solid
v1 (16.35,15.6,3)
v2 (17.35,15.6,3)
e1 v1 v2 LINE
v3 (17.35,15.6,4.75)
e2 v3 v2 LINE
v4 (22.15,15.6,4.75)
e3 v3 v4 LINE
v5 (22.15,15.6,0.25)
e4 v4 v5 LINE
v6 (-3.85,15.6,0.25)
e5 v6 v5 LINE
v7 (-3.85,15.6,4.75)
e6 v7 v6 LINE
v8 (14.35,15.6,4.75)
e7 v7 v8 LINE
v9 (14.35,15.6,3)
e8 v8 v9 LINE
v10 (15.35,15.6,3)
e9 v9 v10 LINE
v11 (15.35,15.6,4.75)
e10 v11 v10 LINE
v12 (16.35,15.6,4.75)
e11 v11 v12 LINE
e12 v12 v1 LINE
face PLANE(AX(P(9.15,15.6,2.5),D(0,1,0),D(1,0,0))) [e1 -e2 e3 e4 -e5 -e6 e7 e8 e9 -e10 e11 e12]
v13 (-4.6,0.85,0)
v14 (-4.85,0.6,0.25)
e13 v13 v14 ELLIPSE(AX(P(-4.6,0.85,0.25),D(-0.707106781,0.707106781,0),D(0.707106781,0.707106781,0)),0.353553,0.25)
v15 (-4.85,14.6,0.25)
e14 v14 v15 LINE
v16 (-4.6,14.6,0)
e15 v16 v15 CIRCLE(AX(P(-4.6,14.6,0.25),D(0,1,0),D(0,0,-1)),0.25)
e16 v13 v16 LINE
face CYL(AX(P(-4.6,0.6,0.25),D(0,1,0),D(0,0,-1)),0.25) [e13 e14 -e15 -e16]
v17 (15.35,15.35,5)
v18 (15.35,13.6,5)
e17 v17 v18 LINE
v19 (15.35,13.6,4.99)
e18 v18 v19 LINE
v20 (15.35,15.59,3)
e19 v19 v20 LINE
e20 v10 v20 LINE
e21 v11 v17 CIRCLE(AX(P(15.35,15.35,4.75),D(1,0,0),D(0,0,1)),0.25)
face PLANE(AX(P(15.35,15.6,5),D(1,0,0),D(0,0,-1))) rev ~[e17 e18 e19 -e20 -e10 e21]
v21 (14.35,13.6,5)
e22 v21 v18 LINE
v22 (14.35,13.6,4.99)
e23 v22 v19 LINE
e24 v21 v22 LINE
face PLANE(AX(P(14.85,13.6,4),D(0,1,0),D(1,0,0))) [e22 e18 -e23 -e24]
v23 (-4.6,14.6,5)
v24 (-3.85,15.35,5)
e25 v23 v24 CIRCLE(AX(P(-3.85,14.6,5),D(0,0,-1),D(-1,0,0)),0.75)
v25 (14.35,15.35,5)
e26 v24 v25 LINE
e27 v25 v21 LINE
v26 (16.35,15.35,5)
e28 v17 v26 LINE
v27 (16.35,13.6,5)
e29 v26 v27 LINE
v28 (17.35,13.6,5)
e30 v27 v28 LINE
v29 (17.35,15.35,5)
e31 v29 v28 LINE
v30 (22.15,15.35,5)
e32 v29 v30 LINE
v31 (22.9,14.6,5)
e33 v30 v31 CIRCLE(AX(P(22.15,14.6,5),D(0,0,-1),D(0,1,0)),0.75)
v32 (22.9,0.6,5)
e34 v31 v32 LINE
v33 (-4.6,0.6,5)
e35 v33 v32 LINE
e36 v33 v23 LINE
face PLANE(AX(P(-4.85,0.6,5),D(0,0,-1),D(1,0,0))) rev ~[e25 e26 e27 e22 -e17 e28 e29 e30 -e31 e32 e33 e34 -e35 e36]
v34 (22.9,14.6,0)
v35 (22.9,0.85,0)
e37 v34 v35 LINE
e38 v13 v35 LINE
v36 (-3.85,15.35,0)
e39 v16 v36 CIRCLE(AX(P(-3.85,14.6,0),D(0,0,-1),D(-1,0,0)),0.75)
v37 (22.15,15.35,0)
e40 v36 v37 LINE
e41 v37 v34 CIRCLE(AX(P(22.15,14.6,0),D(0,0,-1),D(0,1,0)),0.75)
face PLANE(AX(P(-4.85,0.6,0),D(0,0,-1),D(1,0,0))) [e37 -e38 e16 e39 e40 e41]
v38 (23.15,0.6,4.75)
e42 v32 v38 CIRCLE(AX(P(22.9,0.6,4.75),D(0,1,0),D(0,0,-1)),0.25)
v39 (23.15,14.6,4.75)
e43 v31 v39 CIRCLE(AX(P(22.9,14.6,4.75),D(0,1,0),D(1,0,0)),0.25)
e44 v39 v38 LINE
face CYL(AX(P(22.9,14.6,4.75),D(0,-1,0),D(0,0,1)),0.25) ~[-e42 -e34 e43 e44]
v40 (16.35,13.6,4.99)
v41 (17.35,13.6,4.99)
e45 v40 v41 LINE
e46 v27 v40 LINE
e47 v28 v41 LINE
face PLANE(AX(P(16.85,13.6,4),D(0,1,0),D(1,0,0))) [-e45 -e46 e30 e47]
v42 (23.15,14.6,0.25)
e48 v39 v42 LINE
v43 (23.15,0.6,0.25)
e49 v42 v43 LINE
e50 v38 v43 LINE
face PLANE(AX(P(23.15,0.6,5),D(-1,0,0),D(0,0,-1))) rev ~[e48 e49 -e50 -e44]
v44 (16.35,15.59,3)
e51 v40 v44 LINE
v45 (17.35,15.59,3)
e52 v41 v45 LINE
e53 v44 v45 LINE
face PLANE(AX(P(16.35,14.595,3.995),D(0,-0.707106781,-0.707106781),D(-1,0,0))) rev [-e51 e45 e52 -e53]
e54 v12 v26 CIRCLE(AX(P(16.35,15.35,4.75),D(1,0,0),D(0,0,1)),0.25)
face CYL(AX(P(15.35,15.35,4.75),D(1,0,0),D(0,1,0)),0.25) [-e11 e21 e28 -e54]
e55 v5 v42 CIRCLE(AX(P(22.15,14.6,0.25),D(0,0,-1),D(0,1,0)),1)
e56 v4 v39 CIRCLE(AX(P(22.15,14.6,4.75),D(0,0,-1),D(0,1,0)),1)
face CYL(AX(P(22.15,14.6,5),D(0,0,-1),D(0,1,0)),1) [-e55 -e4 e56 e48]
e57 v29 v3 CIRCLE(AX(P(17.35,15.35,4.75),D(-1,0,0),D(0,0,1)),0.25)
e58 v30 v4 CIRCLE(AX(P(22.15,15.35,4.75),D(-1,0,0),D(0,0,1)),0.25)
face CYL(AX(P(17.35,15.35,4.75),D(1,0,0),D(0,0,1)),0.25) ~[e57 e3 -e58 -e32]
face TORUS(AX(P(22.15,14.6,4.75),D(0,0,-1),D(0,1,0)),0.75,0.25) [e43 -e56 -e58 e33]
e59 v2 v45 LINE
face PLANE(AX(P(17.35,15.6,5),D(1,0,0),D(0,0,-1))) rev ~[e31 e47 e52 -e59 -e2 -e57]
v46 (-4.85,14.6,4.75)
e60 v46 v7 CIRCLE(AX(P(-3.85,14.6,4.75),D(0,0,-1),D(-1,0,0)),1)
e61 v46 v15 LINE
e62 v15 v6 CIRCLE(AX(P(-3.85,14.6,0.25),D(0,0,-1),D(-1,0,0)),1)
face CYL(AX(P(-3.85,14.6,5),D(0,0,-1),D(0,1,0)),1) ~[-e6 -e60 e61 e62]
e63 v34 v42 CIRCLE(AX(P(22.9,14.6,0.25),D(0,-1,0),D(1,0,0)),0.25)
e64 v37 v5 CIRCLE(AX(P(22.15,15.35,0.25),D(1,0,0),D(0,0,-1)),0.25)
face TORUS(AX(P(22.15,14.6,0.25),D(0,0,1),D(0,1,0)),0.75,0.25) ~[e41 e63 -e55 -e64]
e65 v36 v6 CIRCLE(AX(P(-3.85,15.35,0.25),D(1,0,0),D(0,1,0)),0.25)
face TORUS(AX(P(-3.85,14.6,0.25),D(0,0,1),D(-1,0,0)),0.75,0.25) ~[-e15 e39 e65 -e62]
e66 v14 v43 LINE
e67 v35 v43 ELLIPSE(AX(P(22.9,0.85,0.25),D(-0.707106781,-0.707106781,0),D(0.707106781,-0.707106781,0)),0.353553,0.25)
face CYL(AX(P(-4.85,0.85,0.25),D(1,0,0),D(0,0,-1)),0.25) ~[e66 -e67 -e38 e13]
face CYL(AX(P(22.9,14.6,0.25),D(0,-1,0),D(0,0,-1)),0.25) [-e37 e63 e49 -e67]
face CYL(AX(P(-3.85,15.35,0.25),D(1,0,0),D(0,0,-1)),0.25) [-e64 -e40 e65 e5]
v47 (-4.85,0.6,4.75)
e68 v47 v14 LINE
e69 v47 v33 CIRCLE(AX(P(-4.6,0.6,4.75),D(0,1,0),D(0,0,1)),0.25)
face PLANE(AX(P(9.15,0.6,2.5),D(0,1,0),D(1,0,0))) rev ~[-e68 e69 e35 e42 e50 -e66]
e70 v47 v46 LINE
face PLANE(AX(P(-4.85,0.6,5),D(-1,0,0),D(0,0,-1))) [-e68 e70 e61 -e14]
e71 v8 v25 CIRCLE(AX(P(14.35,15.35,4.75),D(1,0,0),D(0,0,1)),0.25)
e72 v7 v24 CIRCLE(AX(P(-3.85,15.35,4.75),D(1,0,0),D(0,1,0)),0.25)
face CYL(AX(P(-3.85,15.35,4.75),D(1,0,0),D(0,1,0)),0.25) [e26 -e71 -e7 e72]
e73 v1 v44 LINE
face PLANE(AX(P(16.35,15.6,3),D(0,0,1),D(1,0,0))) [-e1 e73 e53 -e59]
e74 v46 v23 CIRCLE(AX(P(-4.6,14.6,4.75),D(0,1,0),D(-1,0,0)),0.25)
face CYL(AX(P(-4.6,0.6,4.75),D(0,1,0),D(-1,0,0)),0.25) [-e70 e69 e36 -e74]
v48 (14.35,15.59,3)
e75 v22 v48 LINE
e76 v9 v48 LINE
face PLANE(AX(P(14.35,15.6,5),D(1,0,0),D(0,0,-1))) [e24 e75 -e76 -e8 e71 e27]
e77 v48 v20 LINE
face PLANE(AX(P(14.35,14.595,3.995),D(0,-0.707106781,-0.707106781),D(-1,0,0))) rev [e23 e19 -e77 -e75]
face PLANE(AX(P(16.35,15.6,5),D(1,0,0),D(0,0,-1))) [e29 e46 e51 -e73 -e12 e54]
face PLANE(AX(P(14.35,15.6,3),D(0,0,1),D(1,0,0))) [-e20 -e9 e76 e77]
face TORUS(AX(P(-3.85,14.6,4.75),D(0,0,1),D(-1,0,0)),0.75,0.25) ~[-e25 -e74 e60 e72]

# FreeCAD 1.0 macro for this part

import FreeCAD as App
import Part
import Sketcher


def edges_at(feature, points):
    """Names of the edges that pass closest to the given points."""
    edges = feature.Shape.Edges
    near = lambda p: min(range(len(edges)), key=lambda i: edges[i].distToShape(Part.Vertex(*p))[0])
    return sorted({f"Edge{near(p) + 1}" for p in points})

doc = App.newDocument("Part")
body = doc.addObject("PartDesign::Body", "Body")

# Sketch on XZ plane
sketch1 = body.newObject("Sketcher::SketchObject", "Sketch")
sketch1.AttachmentSupport = (doc.getObject("XZ_Plane"), [""])
sketch1.MapMode = "FlatFace"
sketch1.AttachmentOffset = App.Placement(App.Vector(0, 0, -0.6), App.Rotation())
sketch1.addGeometry([
    Part.LineSegment(App.Vector(-5, 0, 0), App.Vector(-5, 5, 0)),
    Part.LineSegment(App.Vector(-5, 5, 0), App.Vector(23, 5, 0)),
    Part.LineSegment(App.Vector(23, 5, 0), App.Vector(23, 0, 0)),
    Part.LineSegment(App.Vector(23, 0, 0), App.Vector(-5, 0, 0)),
], False)
sketch1.addConstraint([
    Sketcher.Constraint("Coincident", 0, 2, 1, 1),
    Sketcher.Constraint("Coincident", 1, 2, 2, 1),
    Sketcher.Constraint("Coincident", 2, 2, 3, 1),
    Sketcher.Constraint("Coincident", 3, 2, 0, 1),
    Sketcher.Constraint("Vertical", 0),
    Sketcher.Constraint("Horizontal", 1),
    Sketcher.Constraint("Vertical", 2),
    Sketcher.Constraint("Horizontal", 3),
    Sketcher.Constraint("PointOnObject", 2, 2, -1),
    Sketcher.Constraint("DistanceX", 1, 1, 1, 2, 28.0),
    Sketcher.Constraint("DistanceY", 0, 1, 0, 2, 5.0),
    Sketcher.Constraint("DistanceX", 0, 2, -1, 1, 4.85),
])
pad1 = body.newObject("PartDesign::Pad", "Pad")
pad1.Profile = sketch1
pad1.Length = 15
pad1.Reversed = True

# Sketch on XZ plane
sketch2 = body.newObject("Sketcher::SketchObject", "Sketch001")
sketch2.AttachmentSupport = (doc.getObject("XZ_Plane"), [""])
sketch2.MapMode = "FlatFace"
sketch2.AttachmentOffset = App.Placement(App.Vector(0, 0, -15.6), App.Rotation())
sketch2.addGeometry([
    Part.LineSegment(App.Vector(14.3, 3, 0), App.Vector(14.3, 5, 0)),  # 0
    Part.LineSegment(App.Vector(14.3, 5, 0), App.Vector(15.3, 5, 0)),  # 1
    Part.LineSegment(App.Vector(15.3, 5, 0), App.Vector(15.3, 3, 0)),  # 2
    Part.LineSegment(App.Vector(15.3, 3, 0), App.Vector(14.3, 3, 0)),  # 3
    Part.LineSegment(App.Vector(16.4, 3, 0), App.Vector(16.4, 5, 0)),  # 4
    Part.LineSegment(App.Vector(16.4, 5, 0), App.Vector(17.4, 5, 0)),  # 5
    Part.LineSegment(App.Vector(17.4, 5, 0), App.Vector(17.4, 3, 0)),  # 6
    Part.LineSegment(App.Vector(17.4, 3, 0), App.Vector(16.4, 3, 0)),  # 7
], False)
sketch2.addConstraint([
    Sketcher.Constraint("Coincident", 0, 2, 1, 1),
    Sketcher.Constraint("Coincident", 1, 2, 2, 1),
    Sketcher.Constraint("Coincident", 2, 2, 3, 1),
    Sketcher.Constraint("Coincident", 3, 2, 0, 1),
    Sketcher.Constraint("Coincident", 4, 2, 5, 1),
    Sketcher.Constraint("Coincident", 5, 2, 6, 1),
    Sketcher.Constraint("Coincident", 6, 2, 7, 1),
    Sketcher.Constraint("Coincident", 7, 2, 4, 1),
    Sketcher.Constraint("Vertical", 0),
    Sketcher.Constraint("Horizontal", 1),
    Sketcher.Constraint("Vertical", 2),
    Sketcher.Constraint("Horizontal", 3),
    Sketcher.Constraint("Vertical", 4),
    Sketcher.Constraint("Horizontal", 5),
    Sketcher.Constraint("Vertical", 6),
    Sketcher.Constraint("Horizontal", 7),
    Sketcher.Constraint("Horizontal", 1, 2, 4, 2),
    Sketcher.Constraint("Horizontal", 3, 2, 6, 2),
    Sketcher.Constraint("Equal", 3, 5),
    Sketcher.Constraint("DistanceX", 1, 1, 1, 2, 1.0),
    Sketcher.Constraint("DistanceY", 0, 1, 0, 2, 2.0),
    Sketcher.Constraint("DistanceY", -1, 1, 0, 2, 5.0),
    Sketcher.Constraint("DistanceX", 1, 2, 4, 2, 1.0),
    Sketcher.Constraint("DistanceX", -1, 1, 0, 2, 14.35),
])
pocket1 = body.newObject("PartDesign::Pocket", "Pocket")
pocket1.Profile = sketch2
pocket1.Length = 2
pocket1.Reversed = True
doc.recompute()

chamfer = body.newObject("PartDesign::Chamfer", "Chamfer")
chamfer.Base = (pocket1, edges_at(pocket1, [(16.85, 13.6, 3), (14.85, 13.6, 3)]))
chamfer.Size = 1.99
doc.recompute()

fillet = body.newObject("PartDesign::Fillet", "Fillet")
fillet.Base = (chamfer, edges_at(chamfer, [(-4.85, 15.6, 2.5), (23.15, 15.6, 2.5)]))
fillet.Radius = 1
doc.recompute()

fillet2 = body.newObject("PartDesign::Fillet", "Fillet001")
fillet2.Base = (fillet, edges_at(fillet, [
    (-4.85, 7.6, 0),
    (-4.557, 15.307, 0),
    (9.15, 0.6, 0),
    (9.15, 15.6, 0),
    (23.15, 7.6, 0),
    (22.857, 15.307, 0),
]))
fillet2.Radius = 0.25
doc.recompute()

fillet3 = body.newObject("PartDesign::Fillet", "Fillet002")
fillet3.Base = (fillet2, edges_at(fillet2, [
    (22.857, 15.307, 5),
    (23.15, 7.6, 5),
    (19.75, 15.6, 5),
    (15.85, 15.6, 5),
    (5.25, 15.6, 5),
    (-4.557, 15.307, 5),
    (-4.85, 7.6, 5),
]))
fillet3.Radius = 0.25

doc.recompute()
